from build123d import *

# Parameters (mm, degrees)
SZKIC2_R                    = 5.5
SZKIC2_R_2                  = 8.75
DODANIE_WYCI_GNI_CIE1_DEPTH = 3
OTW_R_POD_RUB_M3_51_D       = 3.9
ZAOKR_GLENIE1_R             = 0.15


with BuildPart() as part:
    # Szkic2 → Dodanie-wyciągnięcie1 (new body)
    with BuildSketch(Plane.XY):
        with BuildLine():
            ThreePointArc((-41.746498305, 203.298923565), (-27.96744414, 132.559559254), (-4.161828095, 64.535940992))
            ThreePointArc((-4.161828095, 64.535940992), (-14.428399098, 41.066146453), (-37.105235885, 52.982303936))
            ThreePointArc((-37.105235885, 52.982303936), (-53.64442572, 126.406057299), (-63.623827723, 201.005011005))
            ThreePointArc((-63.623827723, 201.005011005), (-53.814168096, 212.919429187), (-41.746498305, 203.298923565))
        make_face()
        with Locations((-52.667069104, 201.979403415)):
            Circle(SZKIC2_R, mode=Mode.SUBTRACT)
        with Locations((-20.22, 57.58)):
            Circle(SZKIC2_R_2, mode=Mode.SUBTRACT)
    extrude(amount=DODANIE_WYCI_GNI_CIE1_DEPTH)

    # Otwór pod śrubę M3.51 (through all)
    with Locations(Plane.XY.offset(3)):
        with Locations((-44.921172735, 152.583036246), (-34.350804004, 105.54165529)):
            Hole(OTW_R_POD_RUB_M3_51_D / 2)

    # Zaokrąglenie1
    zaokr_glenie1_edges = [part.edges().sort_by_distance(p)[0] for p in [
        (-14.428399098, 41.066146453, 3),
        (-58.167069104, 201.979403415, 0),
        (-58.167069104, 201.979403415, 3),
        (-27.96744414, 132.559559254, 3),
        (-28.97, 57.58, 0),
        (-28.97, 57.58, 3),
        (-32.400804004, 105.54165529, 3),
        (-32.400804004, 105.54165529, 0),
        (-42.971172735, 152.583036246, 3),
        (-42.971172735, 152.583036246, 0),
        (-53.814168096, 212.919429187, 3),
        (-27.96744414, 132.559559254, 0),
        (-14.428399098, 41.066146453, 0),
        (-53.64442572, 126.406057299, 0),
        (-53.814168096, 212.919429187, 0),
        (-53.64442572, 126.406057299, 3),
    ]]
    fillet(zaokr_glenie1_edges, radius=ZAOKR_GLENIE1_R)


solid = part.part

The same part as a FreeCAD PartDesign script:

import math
import FreeCAD as App
import Part
import Sketcher
Q = App.Units.Quantity


def edges_at(feature, points):
    """Names of the edges that pass closest to the given points."""
    edges = feature.Shape.Edges
    near = lambda p: min(range(len(edges)), key=lambda i: edges[i].distToShape(Part.Vertex(*p))[0])
    return sorted({f"Edge{near(p) + 1}" for p in points})

doc = App.newDocument("Part")
body = doc.addObject("PartDesign::Body", "Body")

# Sketch on XY plane
sketch1 = body.newObject("Sketcher::SketchObject", "Sketch")
sketch1.AttachmentSupport = (doc.getObject("XY_Plane"), [""])
sketch1.MapMode = "FlatFace"
sketch1.addGeometry(Part.ArcOfCircle(Part.Circle(App.Vector(454.643083, 263.277112, 0), App.Vector(0, 0, 1), 500), math.radians(-173.110415), math.radians(-156.579118)), False)
sketch1.addGeometry(Part.ArcOfCircle(Part.Circle(App.Vector(-52.667069, 201.979403, 0), App.Vector(0, 0, 1), 11), math.radians(6.889585), math.radians(185.081986)), False)
sketch1.addGeometry(Part.ArcOfCircle(Part.Circle(App.Vector(783.034793, 276.29897, 0), App.Vector(0, 0, 1), 850), math.radians(-174.918014), math.radians(-164.768155)), False)
sketch1.addGeometry(Part.ArcOfCircle(Part.Circle(App.Vector(-20.22, 57.58, 0), App.Vector(0, 0, 1), 17.5), math.radians(-164.768155), math.radians(23.420882)), False)
sketch1.addGeometry(Part.Circle(App.Vector(-20.22, 57.58, 0), App.Vector(0, 0, 1), 8.75), False)
sketch1.addGeometry(Part.Circle(App.Vector(-52.667069, 201.979403, 0), App.Vector(0, 0, 1), 5.5), False)
sketch1.addConstraint(Sketcher.Constraint("Tangent", 0, 1, 1, 1))
sketch1.addConstraint(Sketcher.Constraint("Tangent", 1, 2, 2, 1))
sketch1.addConstraint(Sketcher.Constraint("Tangent", 2, 2, 3, 1))
sketch1.addConstraint(Sketcher.Constraint("Tangent", 3, 2, 0, 2))
sketch1.addConstraint(Sketcher.Constraint("Coincident", 4, 3, 3, 3))
sketch1.addConstraint(Sketcher.Constraint("Coincident", 5, 3, 1, 3))
sketch1.addConstraint(Sketcher.Constraint("Diameter", 5, Q("11 mm")))
sketch1.addConstraint(Sketcher.Constraint("Radius", 0, Q("500 mm")))
sketch1.addConstraint(Sketcher.Constraint("Radius", 1, Q("11 mm")))
sketch1.addConstraint(Sketcher.Constraint("Radius", 2, Q("850 mm")))
sketch1.addConstraint(Sketcher.Constraint("Diameter", 4, Q("17.5 mm")))
sketch1.addConstraint(Sketcher.Constraint("Radius", 3, Q("17.5 mm")))
sketch1.addConstraint(Sketcher.Constraint("DistanceX", 3, 3, -1, 1, Q("20.22 mm")))
sketch1.addConstraint(Sketcher.Constraint("DistanceY", -1, 1, 3, 3, Q("57.58 mm")))
sketch1.addConstraint(Sketcher.Constraint("DistanceX", 0, 1, -1, 1, Q("41.746498 mm")))
sketch1.addConstraint(Sketcher.Constraint("DistanceX", 1, 3, -1, 1, Q("52.667069 mm")))
pad1 = body.newObject("PartDesign::Pad", "Pad")
pad1.Profile = sketch1
pad1.Length = 3

# Sketch on XY plane
sketch2 = body.newObject("Sketcher::SketchObject", "Sketch001")
sketch2.AttachmentSupport = (doc.getObject("XY_Plane"), [""])
sketch2.MapMode = "FlatFace"
sketch2.AttachmentOffset = App.Placement(App.Vector(0, 0, 3), App.Rotation())
sketch2.addGeometry(Part.Circle(App.Vector(-44.9, 152.6, 0), App.Vector(0, 0, 1), 1.9), False)
sketch2.addGeometry(Part.Circle(App.Vector(-34.4, 105.5, 0), App.Vector(0, 0, 1), 1.9), False)
sketch2.addConstraint(Sketcher.Constraint("Equal", 0, 1))
sketch2.addConstraint(Sketcher.Constraint("Diameter", 0, Q("3.9 mm")))
sketch2.addConstraint(Sketcher.Constraint("DistanceX", 0, 3, 1, 3, Q("10.570369 mm")))
sketch2.addConstraint(Sketcher.Constraint("DistanceY", 1, 3, 0, 3, Q("47.041381 mm")))
sketch2.addConstraint(Sketcher.Constraint("DistanceX", 0, 3, -1, 1, Q("44.921173 mm")))
sketch2.addConstraint(Sketcher.Constraint("DistanceY", -1, 1, 0, 3, Q("152.583036 mm")))
doc.recompute()
hole = body.newObject("PartDesign::Hole", "Hole")
hole.Profile = sketch2
hole.ThreadType = "None"
hole.Diameter = 3.9
hole.DepthType = "ThroughAll"
doc.recompute()

fillet = body.newObject("PartDesign::Fillet", "Fillet")
fillet.Base = (hole, edges_at(hole, [
    (-14.428, 41.066, 3),
    (-58.167, 201.979, 0),
    (-58.167, 201.979, 3),
    (-27.967, 132.56, 3),
    (-28.97, 57.58, 0),
    (-28.97, 57.58, 3),
    (-32.401, 105.542, 3),
    (-32.401, 105.542, 0),
    (-42.971, 152.583, 3),
    (-42.971, 152.583, 0),
    (-53.814, 212.919, 3),
    (-27.967, 132.56, 0),
    (-14.428, 41.066, 0),
    (-53.644, 126.406, 0),
    (-53.814, 212.919, 0),
    (-53.644, 126.406, 3),
]))
fillet.Radius = 0.15

doc.recompute()
